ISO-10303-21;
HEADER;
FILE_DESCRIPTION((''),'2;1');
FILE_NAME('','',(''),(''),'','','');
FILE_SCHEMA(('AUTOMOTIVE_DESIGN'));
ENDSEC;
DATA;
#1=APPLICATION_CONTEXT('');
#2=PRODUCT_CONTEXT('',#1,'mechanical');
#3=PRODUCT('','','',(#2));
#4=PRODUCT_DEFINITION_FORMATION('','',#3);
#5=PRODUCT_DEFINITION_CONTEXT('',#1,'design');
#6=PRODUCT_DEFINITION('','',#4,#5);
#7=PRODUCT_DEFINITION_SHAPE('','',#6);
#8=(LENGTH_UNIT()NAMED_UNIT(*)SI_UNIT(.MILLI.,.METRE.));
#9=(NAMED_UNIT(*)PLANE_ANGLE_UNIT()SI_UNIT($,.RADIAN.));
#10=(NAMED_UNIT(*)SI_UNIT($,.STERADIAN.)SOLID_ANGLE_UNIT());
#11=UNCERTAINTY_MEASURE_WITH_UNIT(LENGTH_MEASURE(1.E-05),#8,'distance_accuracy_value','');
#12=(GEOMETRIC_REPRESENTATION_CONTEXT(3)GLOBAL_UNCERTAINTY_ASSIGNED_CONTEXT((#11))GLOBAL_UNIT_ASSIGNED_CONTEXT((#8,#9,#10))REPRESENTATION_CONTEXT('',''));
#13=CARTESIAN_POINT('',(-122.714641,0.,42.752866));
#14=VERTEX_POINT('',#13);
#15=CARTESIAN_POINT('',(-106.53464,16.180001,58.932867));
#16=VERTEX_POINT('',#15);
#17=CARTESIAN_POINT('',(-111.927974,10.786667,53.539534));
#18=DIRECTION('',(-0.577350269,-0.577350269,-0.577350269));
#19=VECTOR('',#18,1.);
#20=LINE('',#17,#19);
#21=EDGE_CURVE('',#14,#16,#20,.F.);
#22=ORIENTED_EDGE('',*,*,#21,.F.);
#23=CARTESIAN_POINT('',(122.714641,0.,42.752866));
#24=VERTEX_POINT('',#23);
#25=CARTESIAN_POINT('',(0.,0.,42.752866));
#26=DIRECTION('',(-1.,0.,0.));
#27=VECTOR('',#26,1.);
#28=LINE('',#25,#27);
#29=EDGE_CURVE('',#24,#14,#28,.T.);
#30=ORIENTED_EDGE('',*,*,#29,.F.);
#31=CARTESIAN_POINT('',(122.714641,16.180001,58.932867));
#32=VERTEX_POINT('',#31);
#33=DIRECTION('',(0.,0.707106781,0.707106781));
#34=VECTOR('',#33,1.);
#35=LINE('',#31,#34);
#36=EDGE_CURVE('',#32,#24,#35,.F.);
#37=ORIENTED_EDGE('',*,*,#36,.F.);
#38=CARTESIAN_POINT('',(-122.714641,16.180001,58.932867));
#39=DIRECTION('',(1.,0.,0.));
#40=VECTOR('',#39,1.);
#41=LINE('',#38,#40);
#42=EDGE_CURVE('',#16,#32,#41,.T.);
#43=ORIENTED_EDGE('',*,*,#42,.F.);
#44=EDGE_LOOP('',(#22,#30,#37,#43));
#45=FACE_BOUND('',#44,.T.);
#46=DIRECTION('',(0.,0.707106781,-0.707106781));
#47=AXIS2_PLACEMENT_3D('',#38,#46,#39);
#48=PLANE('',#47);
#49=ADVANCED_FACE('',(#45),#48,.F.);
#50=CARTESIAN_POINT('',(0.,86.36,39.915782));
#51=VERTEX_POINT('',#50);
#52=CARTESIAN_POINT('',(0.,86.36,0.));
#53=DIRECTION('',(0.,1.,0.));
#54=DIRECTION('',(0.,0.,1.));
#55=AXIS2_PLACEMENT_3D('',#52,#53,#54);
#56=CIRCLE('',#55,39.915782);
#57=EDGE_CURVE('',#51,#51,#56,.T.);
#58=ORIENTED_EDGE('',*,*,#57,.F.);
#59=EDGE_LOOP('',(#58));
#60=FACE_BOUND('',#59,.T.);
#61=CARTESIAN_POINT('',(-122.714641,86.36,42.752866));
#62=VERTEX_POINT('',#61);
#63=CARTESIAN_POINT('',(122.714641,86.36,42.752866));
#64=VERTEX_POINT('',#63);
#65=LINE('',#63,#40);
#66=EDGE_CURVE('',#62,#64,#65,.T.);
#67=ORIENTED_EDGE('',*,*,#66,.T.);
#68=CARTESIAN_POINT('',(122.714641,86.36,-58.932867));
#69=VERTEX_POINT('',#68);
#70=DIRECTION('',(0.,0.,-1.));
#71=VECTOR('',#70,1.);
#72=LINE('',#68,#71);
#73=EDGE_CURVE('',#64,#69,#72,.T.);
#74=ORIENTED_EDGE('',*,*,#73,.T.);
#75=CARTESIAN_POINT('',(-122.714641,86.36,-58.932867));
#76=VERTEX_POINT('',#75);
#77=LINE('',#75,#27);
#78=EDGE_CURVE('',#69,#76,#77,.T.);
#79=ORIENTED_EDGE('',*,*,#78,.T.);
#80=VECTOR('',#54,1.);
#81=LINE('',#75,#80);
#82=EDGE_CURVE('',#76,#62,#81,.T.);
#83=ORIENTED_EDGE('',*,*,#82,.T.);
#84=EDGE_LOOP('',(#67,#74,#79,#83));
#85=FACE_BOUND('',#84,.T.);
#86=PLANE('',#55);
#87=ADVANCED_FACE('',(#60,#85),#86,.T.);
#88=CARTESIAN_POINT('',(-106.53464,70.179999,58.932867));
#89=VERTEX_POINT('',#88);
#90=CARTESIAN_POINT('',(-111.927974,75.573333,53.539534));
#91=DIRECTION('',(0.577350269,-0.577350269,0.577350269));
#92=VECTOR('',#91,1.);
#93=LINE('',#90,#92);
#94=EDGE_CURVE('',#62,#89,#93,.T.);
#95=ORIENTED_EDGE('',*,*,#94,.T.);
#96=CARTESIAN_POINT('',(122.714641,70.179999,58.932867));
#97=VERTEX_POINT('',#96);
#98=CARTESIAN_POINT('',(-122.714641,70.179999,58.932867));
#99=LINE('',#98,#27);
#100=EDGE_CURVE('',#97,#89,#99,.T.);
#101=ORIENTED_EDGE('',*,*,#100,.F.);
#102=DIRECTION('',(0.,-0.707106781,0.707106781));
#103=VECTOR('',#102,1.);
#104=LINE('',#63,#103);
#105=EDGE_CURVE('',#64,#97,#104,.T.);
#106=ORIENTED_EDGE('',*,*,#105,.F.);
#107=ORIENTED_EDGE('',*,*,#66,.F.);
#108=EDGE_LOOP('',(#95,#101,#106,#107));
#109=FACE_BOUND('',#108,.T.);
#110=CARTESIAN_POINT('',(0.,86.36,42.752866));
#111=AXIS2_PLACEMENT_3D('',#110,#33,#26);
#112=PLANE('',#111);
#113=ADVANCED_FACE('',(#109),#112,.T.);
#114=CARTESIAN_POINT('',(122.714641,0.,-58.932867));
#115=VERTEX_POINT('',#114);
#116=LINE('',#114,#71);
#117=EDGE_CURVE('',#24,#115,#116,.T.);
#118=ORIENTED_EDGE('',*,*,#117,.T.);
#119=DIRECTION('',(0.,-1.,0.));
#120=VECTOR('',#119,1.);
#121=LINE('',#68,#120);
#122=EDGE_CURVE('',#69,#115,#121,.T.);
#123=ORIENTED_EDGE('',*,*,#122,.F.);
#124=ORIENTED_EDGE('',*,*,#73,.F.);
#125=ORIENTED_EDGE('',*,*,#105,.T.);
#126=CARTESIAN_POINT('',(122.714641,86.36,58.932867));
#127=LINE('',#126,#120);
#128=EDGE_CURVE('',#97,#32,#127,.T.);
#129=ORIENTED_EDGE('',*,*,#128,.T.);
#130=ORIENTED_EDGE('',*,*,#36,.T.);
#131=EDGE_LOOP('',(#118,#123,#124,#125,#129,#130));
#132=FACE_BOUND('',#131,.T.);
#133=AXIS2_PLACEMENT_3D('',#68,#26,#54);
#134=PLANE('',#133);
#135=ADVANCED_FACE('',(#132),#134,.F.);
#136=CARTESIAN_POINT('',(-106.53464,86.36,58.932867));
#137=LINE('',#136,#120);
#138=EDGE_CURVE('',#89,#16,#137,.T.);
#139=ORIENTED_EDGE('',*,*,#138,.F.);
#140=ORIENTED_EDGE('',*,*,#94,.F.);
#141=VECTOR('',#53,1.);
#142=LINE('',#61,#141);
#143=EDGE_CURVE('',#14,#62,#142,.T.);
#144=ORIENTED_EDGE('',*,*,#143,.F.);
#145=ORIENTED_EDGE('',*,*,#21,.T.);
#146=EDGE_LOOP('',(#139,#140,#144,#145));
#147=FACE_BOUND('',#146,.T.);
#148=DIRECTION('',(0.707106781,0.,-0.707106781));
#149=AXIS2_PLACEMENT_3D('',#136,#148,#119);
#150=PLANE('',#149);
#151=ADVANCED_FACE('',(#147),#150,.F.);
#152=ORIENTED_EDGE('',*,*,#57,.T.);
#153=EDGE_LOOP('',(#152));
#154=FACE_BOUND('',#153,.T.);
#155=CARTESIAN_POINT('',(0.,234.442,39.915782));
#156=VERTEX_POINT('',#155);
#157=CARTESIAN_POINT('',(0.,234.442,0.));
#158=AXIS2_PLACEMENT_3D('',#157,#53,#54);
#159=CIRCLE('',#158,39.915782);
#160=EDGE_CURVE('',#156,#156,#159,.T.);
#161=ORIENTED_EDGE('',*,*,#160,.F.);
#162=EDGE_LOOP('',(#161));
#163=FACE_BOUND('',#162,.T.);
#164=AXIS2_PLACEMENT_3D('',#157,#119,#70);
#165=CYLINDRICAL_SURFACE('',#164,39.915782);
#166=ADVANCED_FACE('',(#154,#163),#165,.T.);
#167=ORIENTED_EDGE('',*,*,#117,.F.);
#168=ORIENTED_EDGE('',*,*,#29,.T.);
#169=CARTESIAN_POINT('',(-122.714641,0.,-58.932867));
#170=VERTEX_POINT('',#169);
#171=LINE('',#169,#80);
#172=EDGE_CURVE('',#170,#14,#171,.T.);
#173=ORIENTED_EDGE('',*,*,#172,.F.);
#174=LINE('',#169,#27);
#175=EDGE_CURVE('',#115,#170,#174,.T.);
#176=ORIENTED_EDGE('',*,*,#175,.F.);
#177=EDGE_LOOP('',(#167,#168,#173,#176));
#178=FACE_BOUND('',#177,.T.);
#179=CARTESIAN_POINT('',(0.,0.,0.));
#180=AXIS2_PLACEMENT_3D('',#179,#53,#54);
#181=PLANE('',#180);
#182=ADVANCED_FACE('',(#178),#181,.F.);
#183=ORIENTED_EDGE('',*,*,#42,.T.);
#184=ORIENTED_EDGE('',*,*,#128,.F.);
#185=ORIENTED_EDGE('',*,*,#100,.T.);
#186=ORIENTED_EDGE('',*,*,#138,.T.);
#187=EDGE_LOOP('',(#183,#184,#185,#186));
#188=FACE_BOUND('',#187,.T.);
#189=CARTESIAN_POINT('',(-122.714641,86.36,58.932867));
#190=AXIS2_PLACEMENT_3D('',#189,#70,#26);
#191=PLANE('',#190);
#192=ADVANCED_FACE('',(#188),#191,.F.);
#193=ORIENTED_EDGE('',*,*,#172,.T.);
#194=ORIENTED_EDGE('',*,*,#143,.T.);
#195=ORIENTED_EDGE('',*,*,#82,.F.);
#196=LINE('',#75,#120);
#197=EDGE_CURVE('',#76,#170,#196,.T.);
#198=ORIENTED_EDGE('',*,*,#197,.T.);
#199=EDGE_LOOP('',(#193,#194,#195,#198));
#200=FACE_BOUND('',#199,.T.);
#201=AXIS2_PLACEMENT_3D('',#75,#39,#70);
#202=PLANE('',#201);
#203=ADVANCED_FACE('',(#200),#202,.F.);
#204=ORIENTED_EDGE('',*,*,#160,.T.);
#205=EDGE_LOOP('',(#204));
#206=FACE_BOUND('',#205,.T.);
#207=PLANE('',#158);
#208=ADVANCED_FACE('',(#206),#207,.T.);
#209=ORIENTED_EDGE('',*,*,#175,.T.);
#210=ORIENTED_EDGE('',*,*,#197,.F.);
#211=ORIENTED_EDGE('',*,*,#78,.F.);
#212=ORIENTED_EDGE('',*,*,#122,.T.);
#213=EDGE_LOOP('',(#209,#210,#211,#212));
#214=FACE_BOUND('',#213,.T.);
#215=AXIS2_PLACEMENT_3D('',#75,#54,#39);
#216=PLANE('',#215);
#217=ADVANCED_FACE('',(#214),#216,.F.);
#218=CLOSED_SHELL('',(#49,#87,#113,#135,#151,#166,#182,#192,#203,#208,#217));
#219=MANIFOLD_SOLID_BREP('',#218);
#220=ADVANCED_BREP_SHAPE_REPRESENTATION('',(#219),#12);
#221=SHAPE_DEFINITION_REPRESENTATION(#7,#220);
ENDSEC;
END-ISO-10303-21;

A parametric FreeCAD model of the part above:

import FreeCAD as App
import Part
import Sketcher

V = App.Vector
Q = App.Units.Quantity


def edges_at(feature, points):
    """Names of the edges that pass closest to the given points."""
    edges = feature.Shape.Edges
    near = lambda p: min(range(len(edges)), key=lambda i: edges[i].distToShape(Part.Vertex(*p))[0])
    return sorted({f"Edge{near(p) + 1}" for p in points})

doc = App.newDocument("Part")
body = doc.addObject("PartDesign::Body", "Body")

# Sketch on XZ plane
sketch1 = doc.addObject("Sketcher::SketchObject", "Sketch")
body.addObject(sketch1)
sketch1.AttachmentSupport = (doc.XZ_Plane, [""])
sketch1.MapMode = "FlatFace"
sketch1.addGeometry(Part.LineSegment(V(-122.714641, -58.932867, 0), V(-122.714641, 58.932867, 0)), False)
sketch1.addGeometry(Part.LineSegment(V(-122.714641, 58.932867, 0), V(122.714641, 58.932867, 0)), False)
sketch1.addGeometry(Part.LineSegment(V(122.714641, 58.932867, 0), V(122.714641, -58.932867, 0)), False)
sketch1.addGeometry(Part.LineSegment(V(122.714641, -58.932867, 0), V(-122.714641, -58.932867, 0)), False)
sketch1.addConstraint(Sketcher.Constraint("Coincident", 0, 2, 1, 1))
sketch1.addConstraint(Sketcher.Constraint("Coincident", 1, 2, 2, 1))
sketch1.addConstraint(Sketcher.Constraint("Coincident", 2, 2, 3, 1))
sketch1.addConstraint(Sketcher.Constraint("Coincident", 3, 2, 0, 1))
sketch1.addConstraint(Sketcher.Constraint("Vertical", 0))
sketch1.addConstraint(Sketcher.Constraint("Horizontal", 1))
sketch1.addConstraint(Sketcher.Constraint("Vertical", 2))
sketch1.addConstraint(Sketcher.Constraint("Horizontal", 3))
sketch1.addConstraint(Sketcher.Constraint("Symmetric", 0, 2, 2, 2, -1, 1))
sketch1.addConstraint(Sketcher.Constraint("DistanceX", 1, 1, 1, 2, 245.429282))
sketch1.addConstraint(Sketcher.Constraint("DistanceY", 0, 1, 0, 2, 117.865734))
pad1 = doc.addObject("PartDesign::Pad", "Pad")
body.addObject(pad1)
pad1.Profile = sketch1
pad1.Length = Q("3.4 in")
pad1.Reversed = True
doc.recompute()

chamfer = doc.addObject("PartDesign::Chamfer", "Chamfer")
body.addObject(chamfer)
chamfer.Base = (pad1, edges_at(pad1, [(0, 86.36, 58.933), (0, 0, 58.933), (-122.715, 43.18, 58.933)]))
chamfer.Size = 16.180001

# Sketch on XZ plane
sketch2 = doc.addObject("Sketcher::SketchObject", "Sketch001")
body.addObject(sketch2)
sketch2.AttachmentSupport = (doc.XZ_Plane, [""])
sketch2.MapMode = "FlatFace"
sketch2.AttachmentOffset = App.Placement(V(0, 0, -3.4 * 25.4), App.Rotation())
sketch2.addGeometry(Part.Circle(V(0, 0, 0), V(0, 0, 1), 39.915782), False)
sketch2.addConstraint(Sketcher.Constraint("Coincident", 0, 3, -1, 1))
sketch2.addConstraint(Sketcher.Constraint("Diameter", 0, 79.831563))
pad2 = doc.addObject("PartDesign::Pad", "Pad001")
body.addObject(pad2)
pad2.Profile = sketch2
pad2.Length = Q("5.83 in")
pad2.Reversed = True

doc.recompute()
